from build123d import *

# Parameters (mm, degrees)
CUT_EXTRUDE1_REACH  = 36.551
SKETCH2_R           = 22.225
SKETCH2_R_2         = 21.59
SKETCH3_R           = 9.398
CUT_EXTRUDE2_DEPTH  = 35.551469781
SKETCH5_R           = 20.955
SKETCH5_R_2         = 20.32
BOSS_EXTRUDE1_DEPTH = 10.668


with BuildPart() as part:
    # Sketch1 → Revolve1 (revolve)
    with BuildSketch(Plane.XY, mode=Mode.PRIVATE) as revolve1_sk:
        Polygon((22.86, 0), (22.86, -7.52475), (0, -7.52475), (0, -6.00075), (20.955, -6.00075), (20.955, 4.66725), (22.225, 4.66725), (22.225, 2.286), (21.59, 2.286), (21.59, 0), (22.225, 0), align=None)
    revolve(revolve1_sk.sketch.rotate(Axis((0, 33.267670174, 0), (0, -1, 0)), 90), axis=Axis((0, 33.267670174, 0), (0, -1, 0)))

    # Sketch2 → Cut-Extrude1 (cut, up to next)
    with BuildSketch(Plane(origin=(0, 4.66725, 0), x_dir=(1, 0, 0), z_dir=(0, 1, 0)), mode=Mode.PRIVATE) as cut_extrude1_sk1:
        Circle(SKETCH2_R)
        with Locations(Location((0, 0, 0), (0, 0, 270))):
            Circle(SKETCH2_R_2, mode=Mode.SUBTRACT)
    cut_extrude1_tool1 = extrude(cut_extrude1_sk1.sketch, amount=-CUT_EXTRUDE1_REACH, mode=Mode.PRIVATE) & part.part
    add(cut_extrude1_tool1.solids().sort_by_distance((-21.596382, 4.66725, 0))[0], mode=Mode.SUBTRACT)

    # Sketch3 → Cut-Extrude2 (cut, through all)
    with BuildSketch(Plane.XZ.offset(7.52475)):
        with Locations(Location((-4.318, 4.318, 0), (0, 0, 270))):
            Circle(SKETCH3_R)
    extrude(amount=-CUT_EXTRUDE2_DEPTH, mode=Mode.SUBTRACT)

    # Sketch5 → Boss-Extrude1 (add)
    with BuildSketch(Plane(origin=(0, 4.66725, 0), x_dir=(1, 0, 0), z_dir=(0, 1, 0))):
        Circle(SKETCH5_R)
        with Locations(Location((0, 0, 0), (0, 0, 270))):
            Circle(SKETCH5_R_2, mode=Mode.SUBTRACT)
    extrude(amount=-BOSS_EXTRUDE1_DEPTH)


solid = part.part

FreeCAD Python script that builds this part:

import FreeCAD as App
import Part
import Sketcher
from FreeCAD import Vector
Q = App.Units.Quantity

doc = App.newDocument("Part")
params = doc.addObject("Spreadsheet::Sheet", "Params")
for row, (alias, value) in enumerate([
    ("sketch1_width", "0.9 in"),
    ("sketch1_width2", "0.05 in"),
    ("sketch1_height", "0.09 in"),
    ("sketch1_height2", "0.42 in"),
    ("sketch1_height3", "0.06 in"),
    ("revolution_angle", "360 deg"),
    ("sketch2_diameter", "1.7 in"),
    ("sketch2_diameter2", "1.75 in"),
    ("pocket1_length", "0.09375 in"),
    ("sketch3_diameter", "0.74 in"),
    ("sketch4_diameter", "1.6 in"),
    ("sketch4_diameter2", "1.65 in"),
    ("pad1_length", "0.42 in"),
], start=1):
    params.set(f"A{row}", alias)
    params.set(f"B{row}", "=" + value)
    params.setAlias(f"B{row}", alias)

body = doc.addObject("PartDesign::Body", "Body")

# Sketch on XY plane
sketch1 = doc.addObject("Sketcher::SketchObject", "Sketch")
body.addObject(sketch1)
sketch1.AttachmentSupport = (doc.XY_Plane, [""])
sketch1.MapMode = "FlatFace"
sketch1.addGeometry([
    Part.LineSegment(Vector(22.9, -7.5, 0), Vector(22.9, 0, 0)),  # 0
    Part.LineSegment(Vector(22.9, 0, 0), Vector(21.6, 0, 0)),  # 1
    Part.LineSegment(Vector(21.6, 0, 0), Vector(21.6, 2.3, 0)),  # 2
    Part.LineSegment(Vector(21.6, 2.3, 0), Vector(22.2, 2.3, 0)),  # 3
    Part.LineSegment(Vector(22.2, 2.3, 0), Vector(22.2, 4.7, 0)),  # 4
    Part.LineSegment(Vector(22.2, 4.7, 0), Vector(21, 4.7, 0)),  # 5
    Part.LineSegment(Vector(21, 4.7, 0), Vector(21, -6, 0)),  # 6
    Part.LineSegment(Vector(21, -6, 0), Vector(0, -6, 0)),  # 7
    Part.LineSegment(Vector(0, -6, 0), Vector(0, -7.5, 0)),  # 8
    Part.LineSegment(Vector(0, -7.5, 0), Vector(22.9, -7.5, 0)),  # 9
], False)
sketch1.addConstraint([
    Sketcher.Constraint("Coincident", 0, 2, 1, 1),
    Sketcher.Constraint("Coincident", 1, 2, 2, 1),
    Sketcher.Constraint("Coincident", 2, 2, 3, 1),
    Sketcher.Constraint("Coincident", 3, 2, 4, 1),
    Sketcher.Constraint("Coincident", 4, 2, 5, 1),
    Sketcher.Constraint("Coincident", 5, 2, 6, 1),
    Sketcher.Constraint("Coincident", 6, 2, 7, 1),
    Sketcher.Constraint("Coincident", 7, 2, 8, 1),
    Sketcher.Constraint("Coincident", 8, 2, 9, 1),
    Sketcher.Constraint("Coincident", 9, 2, 0, 1),
    Sketcher.Constraint("Vertical", 0),
    Sketcher.Constraint("Horizontal", 1),
    Sketcher.Constraint("Vertical", 2),
    Sketcher.Constraint("Horizontal", 3),
    Sketcher.Constraint("Vertical", 4),
    Sketcher.Constraint("Horizontal", 5),
    Sketcher.Constraint("Vertical", 6),
    Sketcher.Constraint("Horizontal", 7),
    Sketcher.Constraint("Vertical", 8),
    Sketcher.Constraint("Horizontal", 9),
    Sketcher.Constraint("PointOnObject", 0, 2, -1),
    Sketcher.Constraint("PointOnObject", 7, 2, -2),
    Sketcher.Constraint("Equal", 1, 5),
    Sketcher.Constraint("DistanceX", 9, 1, 9, 2, Q("0.9 in")),
    Sketcher.Constraint("DistanceX", 1, 2, 1, 1, Q("0.05 in")),
    Sketcher.Constraint("DistanceY", 2, 1, 2, 2, Q("0.09 in")),
    Sketcher.Constraint("DistanceY", 6, 2, 6, 1, Q("0.42 in")),
    Sketcher.Constraint("DistanceY", 8, 2, 8, 1, Q("0.06 in")),
    Sketcher.Constraint("DistanceX", 3, 1, 3, 2, Q("0.025 in")),
    Sketcher.Constraint("DistanceY", 4, 1, 4, 2, Q("0.09375 in")),
])
sketch1.setExpression("Constraints[23]", "Params.sketch1_width")
sketch1.setExpression("Constraints[24]", "Params.sketch1_width2")
sketch1.setExpression("Constraints[25]", "Params.sketch1_height")
sketch1.setExpression("Constraints[26]", "Params.sketch1_height2")
sketch1.setExpression("Constraints[27]", "Params.sketch1_height3")
revolution = doc.addObject("PartDesign::Revolution", "Revolution")
body.addObject(revolution)
revolution.Profile = sketch1
revolution.ReferenceAxis = (sketch1, ["V_Axis"])
revolution.setExpression("Angle", "Params.revolution_angle")

# Sketch on XZ plane
sketch2 = doc.addObject("Sketcher::SketchObject", "Sketch001")
body.addObject(sketch2)
sketch2.AttachmentSupport = (doc.XZ_Plane, [""])
sketch2.MapMode = "FlatFace"
sketch2.AttachmentOffset = App.Placement(Vector(0, 0, -4.66725), App.Rotation())
sketch2.addGeometry([
    Part.Circle(Vector(0, 0, 0), Vector(0, 0, 1), 22),
    Part.Circle(Vector(0, 0, 0), Vector(0, 0, 1), 22),
], False)
sketch2.addConstraint([
    Sketcher.Constraint("Coincident", 0, 3, -1, 1),
    Sketcher.Constraint("Coincident", 1, 3, -1, 1),
    Sketcher.Constraint("Diameter", 1, Q("1.7 in")),
    Sketcher.Constraint("Diameter", 0, Q("1.75 in")),
])
sketch2.setExpression("Constraints[2]", "Params.sketch2_diameter")
sketch2.setExpression("Constraints[3]", "Params.sketch2_diameter2")
pocket1 = doc.addObject("PartDesign::Pocket", "Pocket")
body.addObject(pocket1)
pocket1.Profile = sketch2
pocket1.setExpression("Length", "Params.pocket1_length")
pocket1.Reversed = True

# Sketch on XZ plane
sketch3 = doc.addObject("Sketcher::SketchObject", "Sketch002")
body.addObject(sketch3)
sketch3.AttachmentSupport = (doc.XZ_Plane, [""])
sketch3.MapMode = "FlatFace"
sketch3.AttachmentOffset = App.Placement(Vector(0, 0, 7.52475), App.Rotation())
sketch3.addGeometry(Part.Circle(Vector(-4, 4, 0), Vector(0, 0, 1), 9), False)
sketch3.addConstraint([
    Sketcher.Constraint("Diameter", 0, Q("0.74 in")),
    Sketcher.Constraint("DistanceX", 0, 3, -1, 1, Q("0.17 in")),
    Sketcher.Constraint("DistanceY", -1, 1, 0, 3, Q("0.17 in")),
])
sketch3.setExpression("Constraints[0]", "Params.sketch3_diameter")
pocket2 = doc.addObject("PartDesign::Pocket", "Pocket001")
body.addObject(pocket2)
pocket2.Profile = sketch3
pocket2.Type = "ThroughAll"

# Sketch on XZ plane
sketch4 = doc.addObject("Sketcher::SketchObject", "Sketch003")
body.addObject(sketch4)
sketch4.AttachmentSupport = (doc.XZ_Plane, [""])
sketch4.MapMode = "FlatFace"
sketch4.AttachmentOffset = App.Placement(Vector(0, 0, -4.66725), App.Rotation())
sketch4.addGeometry([
    Part.Circle(Vector(0, 0, 0), Vector(0, 0, 1), 21),
    Part.Circle(Vector(0, 0, 0), Vector(0, 0, 1), 20),
], False)
sketch4.addConstraint([
    Sketcher.Constraint("Coincident", 0, 3, -1, 1),
    Sketcher.Constraint("Coincident", 1, 3, -1, 1),
    Sketcher.Constraint("Diameter", 1, Q("1.6 in")),
    Sketcher.Constraint("Diameter", 0, Q("1.65 in")),
])
sketch4.setExpression("Constraints[2]", "Params.sketch4_diameter")
sketch4.setExpression("Constraints[3]", "Params.sketch4_diameter2")
pad1 = doc.addObject("PartDesign::Pad", "Pad")
body.addObject(pad1)
pad1.Profile = sketch4
pad1.setExpression("Length", "Params.pad1_length")

doc.recompute()
